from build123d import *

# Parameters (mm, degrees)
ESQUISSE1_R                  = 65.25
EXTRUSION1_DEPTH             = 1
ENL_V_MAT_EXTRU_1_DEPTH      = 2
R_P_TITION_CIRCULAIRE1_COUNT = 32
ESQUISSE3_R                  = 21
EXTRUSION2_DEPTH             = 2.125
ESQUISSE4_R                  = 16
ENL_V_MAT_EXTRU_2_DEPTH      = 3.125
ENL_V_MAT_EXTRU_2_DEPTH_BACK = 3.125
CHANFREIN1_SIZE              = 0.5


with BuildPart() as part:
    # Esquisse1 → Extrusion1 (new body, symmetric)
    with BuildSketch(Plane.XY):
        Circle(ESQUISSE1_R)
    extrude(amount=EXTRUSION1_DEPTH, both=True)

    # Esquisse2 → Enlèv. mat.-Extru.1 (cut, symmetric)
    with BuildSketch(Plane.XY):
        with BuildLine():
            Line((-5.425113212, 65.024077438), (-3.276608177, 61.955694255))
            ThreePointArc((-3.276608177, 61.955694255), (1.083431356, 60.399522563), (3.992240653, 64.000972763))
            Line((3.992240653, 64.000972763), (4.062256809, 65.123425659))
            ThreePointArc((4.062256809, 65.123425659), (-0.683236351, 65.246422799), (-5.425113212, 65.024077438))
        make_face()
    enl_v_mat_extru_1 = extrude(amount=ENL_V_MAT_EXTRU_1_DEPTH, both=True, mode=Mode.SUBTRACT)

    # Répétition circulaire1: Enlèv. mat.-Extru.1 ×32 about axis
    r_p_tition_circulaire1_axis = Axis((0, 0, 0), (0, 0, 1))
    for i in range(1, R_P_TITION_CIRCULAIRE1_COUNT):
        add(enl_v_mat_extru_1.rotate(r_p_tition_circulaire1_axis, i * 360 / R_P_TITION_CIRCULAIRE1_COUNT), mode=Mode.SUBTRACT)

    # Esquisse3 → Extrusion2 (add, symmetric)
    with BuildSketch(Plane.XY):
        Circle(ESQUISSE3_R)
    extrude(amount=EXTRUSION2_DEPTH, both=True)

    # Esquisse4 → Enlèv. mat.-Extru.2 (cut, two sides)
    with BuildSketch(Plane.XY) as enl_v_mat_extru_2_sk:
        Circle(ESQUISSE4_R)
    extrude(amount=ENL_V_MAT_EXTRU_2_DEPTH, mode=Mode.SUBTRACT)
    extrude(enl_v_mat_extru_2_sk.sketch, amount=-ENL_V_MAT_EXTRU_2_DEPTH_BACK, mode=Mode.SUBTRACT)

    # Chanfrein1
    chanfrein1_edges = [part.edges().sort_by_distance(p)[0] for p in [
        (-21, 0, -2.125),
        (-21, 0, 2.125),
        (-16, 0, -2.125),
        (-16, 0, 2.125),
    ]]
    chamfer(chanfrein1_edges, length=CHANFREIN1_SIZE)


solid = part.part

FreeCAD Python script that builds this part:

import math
import FreeCAD as App
import Part
import Sketcher
Q = App.Units.Quantity


def edges_at(feature, points):
    """Names of the edges that pass closest to the given points."""
    edges = feature.Shape.Edges
    near = lambda p: min(range(len(edges)), key=lambda i: edges[i].distToShape(Part.Vertex(*p))[0])
    return sorted({f"Edge{near(p) + 1}" for p in points})

doc = App.newDocument("Part")
body = doc.addObject("PartDesign::Body", "Body")

# Sketch on XY plane
sketch1 = doc.addObject("Sketcher::SketchObject", "Sketch")
body.addObject(sketch1)
sketch1.AttachmentSupport = (doc.XY_Plane, [""])
sketch1.MapMode = "FlatFace"
sketch1.addGeometry(Part.Circle(App.Vector(0, 0, 0), App.Vector(0, 0, 1), 65), False)
sketch1.addConstraint([
    Sketcher.Constraint("Coincident", 0, 3, -1, 1),
    Sketcher.Constraint("Diameter", 0, Q("130.5 mm")),
])
pad1 = doc.addObject("PartDesign::Pad", "Pad")
body.addObject(pad1)
pad1.Profile = sketch1
pad1.Length = 2
pad1.Midplane = True

# Sketch on XY plane
sketch2 = doc.addObject("Sketcher::SketchObject", "Sketch001")
body.addObject(sketch2)
sketch2.AttachmentSupport = (doc.XY_Plane, [""])
sketch2.MapMode = "FlatFace"
sketch2.addGeometry([
    Part.LineSegment(App.Vector(-5.4, 65, 0), App.Vector(-3.3, 62, 0)),
    Part.ArcOfCircle(Part.Circle(App.Vector(0, 64.2, 0), App.Vector(0, 0, 1), 4), math.radians(-145), math.radians(-4)),
    Part.LineSegment(App.Vector(4, 64, 0), App.Vector(4.1, 65.1, 0)),
    Part.ArcOfCircle(Part.Circle(App.Vector(0, 0, 0), App.Vector(0, 0, 1), 65.3), math.radians(86.43), math.radians(94.77)),
], False)
sketch2.addConstraint([
    Sketcher.Constraint("Tangent", 0, 2, 1, 1),
    Sketcher.Constraint("Tangent", 1, 2, 2, 1),
    Sketcher.Constraint("Coincident", 2, 2, 3, 1),
    Sketcher.Constraint("Coincident", 3, 2, 0, 1),
    Sketcher.Constraint("Coincident", 3, 3, -1, 1),
    Sketcher.Constraint("PointOnObject", 1, 3, -2),
    Sketcher.Constraint("Radius", 1, Q("4 mm")),
    Sketcher.Constraint("Angle", 0, Q("-55 deg")),
    Sketcher.Constraint("Radius", 3, Q("65.25 mm")),
    Sketcher.Constraint("DistanceY", -1, 1, 1, 3, Q("64.25 mm")),
    Sketcher.Constraint("DistanceX", -1, 1, 1, 2, Q("3.992241 mm")),
])
pocket1 = doc.addObject("PartDesign::Pocket", "Pocket")
body.addObject(pocket1)
pocket1.Profile = sketch2
pocket1.Length = 4
pocket1.Midplane = True
doc.recompute()

polarpattern = doc.addObject("PartDesign::PolarPattern", "PolarPattern")
body.addObject(polarpattern)
polarpattern.Originals = [pocket1]
polarpattern.Axis = (doc.Z_Axis, [""])
polarpattern.Angle = 360
polarpattern.Occurrences = 32
body.Tip = polarpattern

# Sketch on XY plane
sketch3 = doc.addObject("Sketcher::SketchObject", "Sketch002")
body.addObject(sketch3)
sketch3.AttachmentSupport = (doc.XY_Plane, [""])
sketch3.MapMode = "FlatFace"
sketch3.addGeometry(Part.Circle(App.Vector(0, 0, 0), App.Vector(0, 0, 1), 21), False)
sketch3.addConstraint([
    Sketcher.Constraint("Coincident", 0, 3, -1, 1),
    Sketcher.Constraint("Diameter", 0, Q("42 mm")),
])
pad2 = doc.addObject("PartDesign::Pad", "Pad001")
body.addObject(pad2)
pad2.Profile = sketch3
pad2.Length = 4.25
pad2.Midplane = True

# Sketch on XY plane
sketch4 = doc.addObject("Sketcher::SketchObject", "Sketch003")
body.addObject(sketch4)
sketch4.AttachmentSupport = (doc.XY_Plane, [""])
sketch4.MapMode = "FlatFace"
sketch4.addGeometry(Part.Circle(App.Vector(0, 0, 0), App.Vector(0, 0, 1), 16), False)
sketch4.addConstraint([
    Sketcher.Constraint("Coincident", 0, 3, -1, 1),
    Sketcher.Constraint("Diameter", 0, Q("32 mm")),
])
pocket2 = doc.addObject("PartDesign::Pocket", "Pocket001")
body.addObject(pocket2)
pocket2.Profile = sketch4
pocket2.Type = "ThroughAll"
pocket2.Midplane = True
doc.recompute()

chamfer = doc.addObject("PartDesign::Chamfer", "Chamfer")
body.addObject(chamfer)
chamfer.Base = (pocket2, edges_at(pocket2, [
    (-21, 0, -2.125),
    (-21, 0, 2.125),
    (-16, 0, -2.125),
    (-16, 0, 2.125),
]))
chamfer.Size = 0.5

doc.recompute()
